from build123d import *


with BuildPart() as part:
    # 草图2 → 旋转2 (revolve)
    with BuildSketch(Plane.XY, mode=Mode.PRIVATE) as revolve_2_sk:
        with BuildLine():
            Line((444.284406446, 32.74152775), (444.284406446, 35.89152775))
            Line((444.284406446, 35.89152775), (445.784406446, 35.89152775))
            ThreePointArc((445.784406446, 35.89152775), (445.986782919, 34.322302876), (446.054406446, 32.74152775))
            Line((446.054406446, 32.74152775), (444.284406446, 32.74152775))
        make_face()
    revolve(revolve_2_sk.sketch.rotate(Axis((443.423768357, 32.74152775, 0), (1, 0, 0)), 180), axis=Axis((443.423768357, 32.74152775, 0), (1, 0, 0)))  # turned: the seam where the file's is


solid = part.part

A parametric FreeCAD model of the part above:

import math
import FreeCAD as App
import Part
import Sketcher

V = App.Vector

doc = App.newDocument("Part")
body = doc.addObject("PartDesign::Body", "Body")

# Sketch on XY plane
sketch1 = body.newObject("Sketcher::SketchObject", "Sketch")
sketch1.AttachmentSupport = (doc.getObject("XY_Plane"), [""])
sketch1.MapMode = "FlatFace"
sketch1.addGeometry([
    Part.LineSegment(V(444.3, 35.9, 0), V(444.3, 32.7, 0)),
    Part.LineSegment(V(444.3, 32.7, 0), V(446.1, 32.7, 0)),
    Part.ArcOfCircle(Part.Circle(V(427.5, 32.7, 0), V(0, 0, 1), 18.5), math.radians(0), math.radians(9.8)),
    Part.LineSegment(V(445.8, 35.9, 0), V(444.3, 35.9, 0)),
], False)
sketch1.addGeometry(Part.LineSegment(V(427.5, 32.7, 0), V(446.1, 32.7, 0)), True)  # axis
sketch1.addConstraint([
    Sketcher.Constraint("Coincident", 0, 2, 1, 1),
    Sketcher.Constraint("Coincident", 1, 2, 2, 1),
    Sketcher.Constraint("Coincident", 2, 2, 3, 1),
    Sketcher.Constraint("Coincident", 3, 2, 0, 1),
    Sketcher.Constraint("Vertical", 0),
    Sketcher.Constraint("Horizontal", 1),
    Sketcher.Constraint("Horizontal", 3),
    Sketcher.Constraint("Horizontal", 4),
    Sketcher.Constraint("Coincident", 4, 1, 2, 3),
    Sketcher.Constraint("Coincident", 4, 2, 1, 2),
    Sketcher.Constraint("Radius", 2, 18.51),
    Sketcher.Constraint("DistanceX", 3, 2, 3, 1, 1.5),
    Sketcher.Constraint("DistanceX", 1, 1, 1, 2, 1.77),
    Sketcher.Constraint("DistanceX", -1, 1, 2, 3, 427.544406),
    Sketcher.Constraint("DistanceY", -1, 1, 2, 3, 32.741528),
])
revolution = body.newObject("PartDesign::Revolution", "Revolution")
revolution.Profile = sketch1
revolution.ReferenceAxis = (sketch1, ["Axis0"])
revolution.Angle = 360

doc.recompute()
